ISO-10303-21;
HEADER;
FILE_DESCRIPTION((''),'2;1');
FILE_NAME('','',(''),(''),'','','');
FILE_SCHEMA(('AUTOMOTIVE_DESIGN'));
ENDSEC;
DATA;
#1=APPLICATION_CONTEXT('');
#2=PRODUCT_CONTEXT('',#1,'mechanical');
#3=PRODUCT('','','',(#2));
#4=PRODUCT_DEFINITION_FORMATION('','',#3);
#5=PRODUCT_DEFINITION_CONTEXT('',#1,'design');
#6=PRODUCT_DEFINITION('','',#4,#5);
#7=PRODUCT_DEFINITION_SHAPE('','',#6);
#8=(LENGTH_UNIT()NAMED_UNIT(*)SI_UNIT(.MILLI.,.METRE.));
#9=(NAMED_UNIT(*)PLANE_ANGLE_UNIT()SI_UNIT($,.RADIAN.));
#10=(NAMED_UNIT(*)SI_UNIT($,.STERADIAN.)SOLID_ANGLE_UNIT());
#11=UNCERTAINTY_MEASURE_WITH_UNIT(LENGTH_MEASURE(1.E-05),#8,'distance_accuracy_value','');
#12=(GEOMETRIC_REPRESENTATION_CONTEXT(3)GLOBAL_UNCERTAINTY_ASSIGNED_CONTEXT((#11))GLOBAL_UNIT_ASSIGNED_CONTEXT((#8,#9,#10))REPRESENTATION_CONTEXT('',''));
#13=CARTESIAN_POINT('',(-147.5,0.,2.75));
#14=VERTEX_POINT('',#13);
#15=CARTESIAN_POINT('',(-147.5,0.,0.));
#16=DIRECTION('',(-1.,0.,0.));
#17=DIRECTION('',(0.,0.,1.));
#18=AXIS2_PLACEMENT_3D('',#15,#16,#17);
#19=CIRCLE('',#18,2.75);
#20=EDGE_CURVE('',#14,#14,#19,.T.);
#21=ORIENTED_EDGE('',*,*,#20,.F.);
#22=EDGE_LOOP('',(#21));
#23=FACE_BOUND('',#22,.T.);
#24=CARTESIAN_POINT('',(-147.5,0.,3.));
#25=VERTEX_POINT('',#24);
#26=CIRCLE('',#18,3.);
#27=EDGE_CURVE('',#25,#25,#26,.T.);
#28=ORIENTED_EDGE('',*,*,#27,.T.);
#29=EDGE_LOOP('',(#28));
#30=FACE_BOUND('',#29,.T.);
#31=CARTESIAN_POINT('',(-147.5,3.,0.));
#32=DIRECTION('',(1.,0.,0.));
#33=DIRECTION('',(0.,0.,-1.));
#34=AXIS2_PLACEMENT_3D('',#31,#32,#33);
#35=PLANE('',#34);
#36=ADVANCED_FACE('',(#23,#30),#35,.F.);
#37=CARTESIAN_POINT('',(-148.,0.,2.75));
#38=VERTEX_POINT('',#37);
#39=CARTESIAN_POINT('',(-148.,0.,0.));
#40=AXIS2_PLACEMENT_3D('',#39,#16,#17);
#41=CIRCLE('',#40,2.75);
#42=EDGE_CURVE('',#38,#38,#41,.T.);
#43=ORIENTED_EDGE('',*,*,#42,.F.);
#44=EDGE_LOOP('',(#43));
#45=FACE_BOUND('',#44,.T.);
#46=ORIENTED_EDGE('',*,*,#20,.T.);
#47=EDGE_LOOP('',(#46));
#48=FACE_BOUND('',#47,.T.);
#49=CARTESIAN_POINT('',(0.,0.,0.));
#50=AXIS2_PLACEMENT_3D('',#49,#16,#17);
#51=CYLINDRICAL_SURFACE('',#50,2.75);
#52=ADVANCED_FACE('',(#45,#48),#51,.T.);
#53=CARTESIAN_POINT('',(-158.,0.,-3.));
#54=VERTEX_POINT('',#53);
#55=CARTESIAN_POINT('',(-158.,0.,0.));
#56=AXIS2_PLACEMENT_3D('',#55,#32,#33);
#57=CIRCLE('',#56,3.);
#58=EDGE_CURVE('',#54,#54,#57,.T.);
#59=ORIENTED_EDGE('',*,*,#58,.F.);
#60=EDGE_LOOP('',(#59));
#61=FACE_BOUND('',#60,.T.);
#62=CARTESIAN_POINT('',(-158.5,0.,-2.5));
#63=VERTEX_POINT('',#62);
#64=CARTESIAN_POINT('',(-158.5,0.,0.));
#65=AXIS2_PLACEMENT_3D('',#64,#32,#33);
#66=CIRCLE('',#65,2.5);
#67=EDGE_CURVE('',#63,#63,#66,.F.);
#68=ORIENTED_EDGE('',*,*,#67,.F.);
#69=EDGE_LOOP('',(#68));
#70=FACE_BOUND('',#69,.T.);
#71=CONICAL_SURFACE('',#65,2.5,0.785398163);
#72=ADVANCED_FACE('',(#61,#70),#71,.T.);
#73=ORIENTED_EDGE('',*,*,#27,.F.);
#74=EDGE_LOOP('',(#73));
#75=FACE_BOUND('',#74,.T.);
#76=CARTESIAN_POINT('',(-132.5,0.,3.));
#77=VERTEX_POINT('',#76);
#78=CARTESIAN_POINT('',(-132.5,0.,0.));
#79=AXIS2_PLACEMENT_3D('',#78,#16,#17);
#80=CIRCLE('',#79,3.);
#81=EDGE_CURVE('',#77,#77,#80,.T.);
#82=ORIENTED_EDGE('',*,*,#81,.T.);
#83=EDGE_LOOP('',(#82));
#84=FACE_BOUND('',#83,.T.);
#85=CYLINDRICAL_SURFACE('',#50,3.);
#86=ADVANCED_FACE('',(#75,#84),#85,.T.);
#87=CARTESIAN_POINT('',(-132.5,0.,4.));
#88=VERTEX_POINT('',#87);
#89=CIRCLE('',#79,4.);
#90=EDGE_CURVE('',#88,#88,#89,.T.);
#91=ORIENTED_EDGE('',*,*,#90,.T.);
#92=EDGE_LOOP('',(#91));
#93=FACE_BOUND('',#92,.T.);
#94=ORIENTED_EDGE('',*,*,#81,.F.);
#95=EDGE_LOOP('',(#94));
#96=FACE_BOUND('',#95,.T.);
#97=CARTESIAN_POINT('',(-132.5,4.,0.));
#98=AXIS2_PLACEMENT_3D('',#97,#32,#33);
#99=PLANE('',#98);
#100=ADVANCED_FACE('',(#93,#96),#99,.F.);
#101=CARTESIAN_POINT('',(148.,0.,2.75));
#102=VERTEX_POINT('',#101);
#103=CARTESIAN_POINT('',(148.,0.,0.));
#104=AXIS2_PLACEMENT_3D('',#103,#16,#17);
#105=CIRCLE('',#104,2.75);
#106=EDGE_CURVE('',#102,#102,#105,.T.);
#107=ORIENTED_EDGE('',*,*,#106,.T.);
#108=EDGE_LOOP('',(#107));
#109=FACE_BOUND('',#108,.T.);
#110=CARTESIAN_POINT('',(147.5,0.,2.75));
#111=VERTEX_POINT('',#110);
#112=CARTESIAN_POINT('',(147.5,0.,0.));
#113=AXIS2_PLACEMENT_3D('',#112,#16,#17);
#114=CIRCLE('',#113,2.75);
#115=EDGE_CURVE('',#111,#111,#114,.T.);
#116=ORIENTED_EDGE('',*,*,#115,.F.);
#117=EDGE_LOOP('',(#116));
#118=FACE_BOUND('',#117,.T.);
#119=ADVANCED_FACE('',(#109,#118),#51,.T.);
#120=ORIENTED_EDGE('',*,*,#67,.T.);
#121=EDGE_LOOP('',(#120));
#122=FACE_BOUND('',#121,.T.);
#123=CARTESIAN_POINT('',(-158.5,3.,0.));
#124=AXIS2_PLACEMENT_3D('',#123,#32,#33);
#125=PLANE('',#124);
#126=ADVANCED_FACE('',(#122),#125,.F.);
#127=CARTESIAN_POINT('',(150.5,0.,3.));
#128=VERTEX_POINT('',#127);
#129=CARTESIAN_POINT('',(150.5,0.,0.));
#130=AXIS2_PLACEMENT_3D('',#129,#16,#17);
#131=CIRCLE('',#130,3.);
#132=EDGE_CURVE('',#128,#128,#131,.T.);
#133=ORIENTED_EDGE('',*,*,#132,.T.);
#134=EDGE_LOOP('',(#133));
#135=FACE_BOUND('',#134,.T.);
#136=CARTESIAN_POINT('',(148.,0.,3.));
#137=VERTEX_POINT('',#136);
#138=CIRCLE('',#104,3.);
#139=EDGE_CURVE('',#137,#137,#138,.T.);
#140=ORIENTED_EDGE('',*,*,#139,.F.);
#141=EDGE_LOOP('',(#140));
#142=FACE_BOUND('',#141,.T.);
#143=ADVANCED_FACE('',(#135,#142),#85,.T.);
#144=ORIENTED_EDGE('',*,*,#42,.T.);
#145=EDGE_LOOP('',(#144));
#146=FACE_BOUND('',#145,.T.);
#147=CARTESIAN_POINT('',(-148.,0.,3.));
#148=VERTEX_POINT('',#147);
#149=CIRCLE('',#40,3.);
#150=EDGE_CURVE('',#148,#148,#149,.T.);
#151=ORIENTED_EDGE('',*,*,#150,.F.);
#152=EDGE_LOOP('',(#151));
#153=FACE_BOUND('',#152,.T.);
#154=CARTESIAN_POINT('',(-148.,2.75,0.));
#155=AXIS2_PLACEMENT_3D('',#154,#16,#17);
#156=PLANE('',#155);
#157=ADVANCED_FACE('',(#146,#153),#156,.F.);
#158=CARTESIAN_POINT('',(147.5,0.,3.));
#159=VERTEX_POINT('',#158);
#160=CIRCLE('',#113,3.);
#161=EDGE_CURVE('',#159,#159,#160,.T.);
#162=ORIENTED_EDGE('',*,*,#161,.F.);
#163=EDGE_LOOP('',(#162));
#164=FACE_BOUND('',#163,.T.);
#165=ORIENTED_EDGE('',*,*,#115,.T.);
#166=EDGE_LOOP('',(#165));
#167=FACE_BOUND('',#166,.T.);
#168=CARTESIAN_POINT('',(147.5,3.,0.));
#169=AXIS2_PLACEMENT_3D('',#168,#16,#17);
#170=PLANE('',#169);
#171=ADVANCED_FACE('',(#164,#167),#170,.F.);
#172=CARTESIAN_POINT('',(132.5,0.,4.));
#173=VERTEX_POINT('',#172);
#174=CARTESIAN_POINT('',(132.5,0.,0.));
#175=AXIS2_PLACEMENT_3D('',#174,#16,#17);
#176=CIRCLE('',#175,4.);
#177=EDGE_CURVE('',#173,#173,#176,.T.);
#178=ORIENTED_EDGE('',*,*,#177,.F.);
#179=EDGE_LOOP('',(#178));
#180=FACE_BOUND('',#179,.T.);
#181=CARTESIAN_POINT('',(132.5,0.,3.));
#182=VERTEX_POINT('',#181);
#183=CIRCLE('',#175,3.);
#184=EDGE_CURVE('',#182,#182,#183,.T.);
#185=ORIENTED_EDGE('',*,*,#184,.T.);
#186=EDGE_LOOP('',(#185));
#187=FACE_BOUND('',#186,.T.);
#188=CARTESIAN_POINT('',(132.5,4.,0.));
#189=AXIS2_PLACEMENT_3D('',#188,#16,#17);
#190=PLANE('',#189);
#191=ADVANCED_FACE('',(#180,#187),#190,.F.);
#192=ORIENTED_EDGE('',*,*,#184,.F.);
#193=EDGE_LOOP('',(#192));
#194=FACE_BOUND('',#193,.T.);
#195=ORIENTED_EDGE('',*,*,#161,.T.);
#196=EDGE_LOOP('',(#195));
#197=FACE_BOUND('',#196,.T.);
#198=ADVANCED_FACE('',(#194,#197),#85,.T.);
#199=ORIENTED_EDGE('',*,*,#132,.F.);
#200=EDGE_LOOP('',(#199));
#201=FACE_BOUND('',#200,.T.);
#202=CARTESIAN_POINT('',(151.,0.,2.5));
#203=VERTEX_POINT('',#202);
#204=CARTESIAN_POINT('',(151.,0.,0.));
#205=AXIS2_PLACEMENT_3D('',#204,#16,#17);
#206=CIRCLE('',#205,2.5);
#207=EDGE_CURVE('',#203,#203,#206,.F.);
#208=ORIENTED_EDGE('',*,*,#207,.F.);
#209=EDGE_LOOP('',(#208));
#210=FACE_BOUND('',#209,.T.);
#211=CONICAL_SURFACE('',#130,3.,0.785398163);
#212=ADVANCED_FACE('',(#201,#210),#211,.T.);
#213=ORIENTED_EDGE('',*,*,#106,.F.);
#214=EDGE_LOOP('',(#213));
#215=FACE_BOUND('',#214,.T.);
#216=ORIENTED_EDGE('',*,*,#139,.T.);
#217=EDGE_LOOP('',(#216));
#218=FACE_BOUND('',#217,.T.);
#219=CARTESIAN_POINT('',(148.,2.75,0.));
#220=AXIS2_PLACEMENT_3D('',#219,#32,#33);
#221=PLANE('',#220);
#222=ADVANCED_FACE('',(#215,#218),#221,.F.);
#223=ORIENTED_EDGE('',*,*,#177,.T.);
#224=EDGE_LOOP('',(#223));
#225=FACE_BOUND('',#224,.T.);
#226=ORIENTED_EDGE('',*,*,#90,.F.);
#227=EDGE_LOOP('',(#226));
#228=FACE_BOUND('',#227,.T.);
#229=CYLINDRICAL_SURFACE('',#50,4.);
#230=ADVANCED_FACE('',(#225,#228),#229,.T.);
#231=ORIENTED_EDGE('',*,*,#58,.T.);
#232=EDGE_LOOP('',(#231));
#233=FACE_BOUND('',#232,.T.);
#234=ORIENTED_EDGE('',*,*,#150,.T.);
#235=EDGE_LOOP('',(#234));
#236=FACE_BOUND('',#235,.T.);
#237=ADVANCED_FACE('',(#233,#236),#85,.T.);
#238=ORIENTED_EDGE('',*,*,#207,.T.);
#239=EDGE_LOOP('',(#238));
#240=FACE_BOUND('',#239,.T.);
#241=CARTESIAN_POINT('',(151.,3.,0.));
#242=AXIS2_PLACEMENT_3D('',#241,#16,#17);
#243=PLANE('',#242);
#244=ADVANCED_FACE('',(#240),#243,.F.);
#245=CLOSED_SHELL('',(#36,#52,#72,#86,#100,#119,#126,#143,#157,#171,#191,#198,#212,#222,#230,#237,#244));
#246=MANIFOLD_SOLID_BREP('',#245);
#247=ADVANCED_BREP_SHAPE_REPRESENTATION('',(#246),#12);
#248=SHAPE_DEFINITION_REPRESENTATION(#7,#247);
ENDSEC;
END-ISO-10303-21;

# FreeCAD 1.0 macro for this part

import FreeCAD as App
import Part
import Sketcher
from FreeCAD import Vector
Q = App.Units.Quantity


def edges_at(feature, points):
    """Names of the edges that pass closest to the given points."""
    edges = feature.Shape.Edges
    near = lambda p: min(range(len(edges)), key=lambda i: edges[i].distToShape(Part.Vertex(*p))[0])
    return sorted({f"Edge{near(p) + 1}" for p in points})


def add_polygon(sketch, points):
    """Adds a closed chain of lines whose ends are joined by coincident constraints."""
    first, n = sketch.GeometryCount, len(points)
    for a, b in zip(points, points[1:] + points[:1]):
        sketch.addGeometry(Part.LineSegment(App.Vector(*a, 0), App.Vector(*b, 0)), False)
    for i in range(n):
        sketch.addConstraint(Sketcher.Constraint("Coincident", first + i, 2, first + (i + 1) % n, 1))

doc = App.newDocument("Part")
body = doc.addObject("PartDesign::Body", "Body")

# Sketch on XY plane
sketch1 = body.newObject("Sketcher::SketchObject", "Sketch")
sketch1.AttachmentSupport = (doc.getObject("XY_Plane"), [""])
sketch1.MapMode = "FlatFace"
add_polygon(sketch1, [(132.5, 4), (-132.5, 4), (-132.5, 3), (-147.5, 3), (-147.5, 2.75), (-148, 2.75), (-148, 3), (-158.5, 3), (-158.5, 0), (151, 0), (151, 3), (148, 3), (148, 2.75), (147.5, 2.75), (147.5, 3), (132.5, 3)])  # lines 0-15
sketch1.addConstraint(Sketcher.Constraint("Horizontal", 0))
sketch1.addConstraint(Sketcher.Constraint("Vertical", 1))
sketch1.addConstraint(Sketcher.Constraint("Horizontal", 2))
sketch1.addConstraint(Sketcher.Constraint("Vertical", 3))
sketch1.addConstraint(Sketcher.Constraint("Horizontal", 4))
sketch1.addConstraint(Sketcher.Constraint("Vertical", 5))
sketch1.addConstraint(Sketcher.Constraint("Horizontal", 6))
sketch1.addConstraint(Sketcher.Constraint("Vertical", 7))
sketch1.addConstraint(Sketcher.Constraint("Horizontal", 8))
sketch1.addConstraint(Sketcher.Constraint("Vertical", 9))
sketch1.addConstraint(Sketcher.Constraint("Horizontal", 10))
sketch1.addConstraint(Sketcher.Constraint("Vertical", 11))
sketch1.addConstraint(Sketcher.Constraint("Horizontal", 12))
sketch1.addConstraint(Sketcher.Constraint("Vertical", 13))
sketch1.addConstraint(Sketcher.Constraint("Horizontal", 14))
sketch1.addConstraint(Sketcher.Constraint("Vertical", 15))
sketch1.addConstraint(Sketcher.Constraint("Symmetric", 5, 2, 10, 2, -2))
sketch1.addConstraint(Sketcher.Constraint("Symmetric", 3, 2, 12, 2, -2))
sketch1.addConstraint(Sketcher.Constraint("Symmetric", 1, 2, 14, 2, -2))
sketch1.addConstraint(Sketcher.Constraint("PointOnObject", 7, 2, -1))
sketch1.addConstraint(Sketcher.Constraint("Horizontal", 2, 2, 5, 2))
sketch1.addConstraint(Sketcher.Constraint("Equal", 10, 7))
sketch1.addConstraint(Sketcher.Constraint("DistanceX", 0, 2, 0, 1, Q("265 mm")))
sketch1.addConstraint(Sketcher.Constraint("DistanceX", 2, 2, 2, 1, Q("15 mm")))
sketch1.addConstraint(Sketcher.Constraint("DistanceX", 10, 2, 10, 1, Q("3 mm")))
sketch1.addConstraint(Sketcher.Constraint("DistanceY", 1, 2, 1, 1, Q("1 mm")))
sketch1.addConstraint(Sketcher.Constraint("DistanceX", 4, 2, 4, 1, Q("0.5 mm")))
sketch1.addConstraint(Sketcher.Constraint("DistanceX", 6, 2, 6, 1, Q("10.5 mm")))
sketch1.addConstraint(Sketcher.Constraint("DistanceY", 3, 2, 3, 1, Q("0.25 mm")))
revolution = body.newObject("PartDesign::Revolution", "Revolution")
revolution.Profile = sketch1
revolution.ReferenceAxis = (sketch1, ["H_Axis"])
revolution.Angle = 360
doc.recompute()

chamfer = body.newObject("PartDesign::Chamfer", "Chamfer")
chamfer.Base = (revolution, edges_at(revolution, [(151, 0, -3), (-158.5, 0, -3)]))
chamfer.Size = 0.5

doc.recompute()
